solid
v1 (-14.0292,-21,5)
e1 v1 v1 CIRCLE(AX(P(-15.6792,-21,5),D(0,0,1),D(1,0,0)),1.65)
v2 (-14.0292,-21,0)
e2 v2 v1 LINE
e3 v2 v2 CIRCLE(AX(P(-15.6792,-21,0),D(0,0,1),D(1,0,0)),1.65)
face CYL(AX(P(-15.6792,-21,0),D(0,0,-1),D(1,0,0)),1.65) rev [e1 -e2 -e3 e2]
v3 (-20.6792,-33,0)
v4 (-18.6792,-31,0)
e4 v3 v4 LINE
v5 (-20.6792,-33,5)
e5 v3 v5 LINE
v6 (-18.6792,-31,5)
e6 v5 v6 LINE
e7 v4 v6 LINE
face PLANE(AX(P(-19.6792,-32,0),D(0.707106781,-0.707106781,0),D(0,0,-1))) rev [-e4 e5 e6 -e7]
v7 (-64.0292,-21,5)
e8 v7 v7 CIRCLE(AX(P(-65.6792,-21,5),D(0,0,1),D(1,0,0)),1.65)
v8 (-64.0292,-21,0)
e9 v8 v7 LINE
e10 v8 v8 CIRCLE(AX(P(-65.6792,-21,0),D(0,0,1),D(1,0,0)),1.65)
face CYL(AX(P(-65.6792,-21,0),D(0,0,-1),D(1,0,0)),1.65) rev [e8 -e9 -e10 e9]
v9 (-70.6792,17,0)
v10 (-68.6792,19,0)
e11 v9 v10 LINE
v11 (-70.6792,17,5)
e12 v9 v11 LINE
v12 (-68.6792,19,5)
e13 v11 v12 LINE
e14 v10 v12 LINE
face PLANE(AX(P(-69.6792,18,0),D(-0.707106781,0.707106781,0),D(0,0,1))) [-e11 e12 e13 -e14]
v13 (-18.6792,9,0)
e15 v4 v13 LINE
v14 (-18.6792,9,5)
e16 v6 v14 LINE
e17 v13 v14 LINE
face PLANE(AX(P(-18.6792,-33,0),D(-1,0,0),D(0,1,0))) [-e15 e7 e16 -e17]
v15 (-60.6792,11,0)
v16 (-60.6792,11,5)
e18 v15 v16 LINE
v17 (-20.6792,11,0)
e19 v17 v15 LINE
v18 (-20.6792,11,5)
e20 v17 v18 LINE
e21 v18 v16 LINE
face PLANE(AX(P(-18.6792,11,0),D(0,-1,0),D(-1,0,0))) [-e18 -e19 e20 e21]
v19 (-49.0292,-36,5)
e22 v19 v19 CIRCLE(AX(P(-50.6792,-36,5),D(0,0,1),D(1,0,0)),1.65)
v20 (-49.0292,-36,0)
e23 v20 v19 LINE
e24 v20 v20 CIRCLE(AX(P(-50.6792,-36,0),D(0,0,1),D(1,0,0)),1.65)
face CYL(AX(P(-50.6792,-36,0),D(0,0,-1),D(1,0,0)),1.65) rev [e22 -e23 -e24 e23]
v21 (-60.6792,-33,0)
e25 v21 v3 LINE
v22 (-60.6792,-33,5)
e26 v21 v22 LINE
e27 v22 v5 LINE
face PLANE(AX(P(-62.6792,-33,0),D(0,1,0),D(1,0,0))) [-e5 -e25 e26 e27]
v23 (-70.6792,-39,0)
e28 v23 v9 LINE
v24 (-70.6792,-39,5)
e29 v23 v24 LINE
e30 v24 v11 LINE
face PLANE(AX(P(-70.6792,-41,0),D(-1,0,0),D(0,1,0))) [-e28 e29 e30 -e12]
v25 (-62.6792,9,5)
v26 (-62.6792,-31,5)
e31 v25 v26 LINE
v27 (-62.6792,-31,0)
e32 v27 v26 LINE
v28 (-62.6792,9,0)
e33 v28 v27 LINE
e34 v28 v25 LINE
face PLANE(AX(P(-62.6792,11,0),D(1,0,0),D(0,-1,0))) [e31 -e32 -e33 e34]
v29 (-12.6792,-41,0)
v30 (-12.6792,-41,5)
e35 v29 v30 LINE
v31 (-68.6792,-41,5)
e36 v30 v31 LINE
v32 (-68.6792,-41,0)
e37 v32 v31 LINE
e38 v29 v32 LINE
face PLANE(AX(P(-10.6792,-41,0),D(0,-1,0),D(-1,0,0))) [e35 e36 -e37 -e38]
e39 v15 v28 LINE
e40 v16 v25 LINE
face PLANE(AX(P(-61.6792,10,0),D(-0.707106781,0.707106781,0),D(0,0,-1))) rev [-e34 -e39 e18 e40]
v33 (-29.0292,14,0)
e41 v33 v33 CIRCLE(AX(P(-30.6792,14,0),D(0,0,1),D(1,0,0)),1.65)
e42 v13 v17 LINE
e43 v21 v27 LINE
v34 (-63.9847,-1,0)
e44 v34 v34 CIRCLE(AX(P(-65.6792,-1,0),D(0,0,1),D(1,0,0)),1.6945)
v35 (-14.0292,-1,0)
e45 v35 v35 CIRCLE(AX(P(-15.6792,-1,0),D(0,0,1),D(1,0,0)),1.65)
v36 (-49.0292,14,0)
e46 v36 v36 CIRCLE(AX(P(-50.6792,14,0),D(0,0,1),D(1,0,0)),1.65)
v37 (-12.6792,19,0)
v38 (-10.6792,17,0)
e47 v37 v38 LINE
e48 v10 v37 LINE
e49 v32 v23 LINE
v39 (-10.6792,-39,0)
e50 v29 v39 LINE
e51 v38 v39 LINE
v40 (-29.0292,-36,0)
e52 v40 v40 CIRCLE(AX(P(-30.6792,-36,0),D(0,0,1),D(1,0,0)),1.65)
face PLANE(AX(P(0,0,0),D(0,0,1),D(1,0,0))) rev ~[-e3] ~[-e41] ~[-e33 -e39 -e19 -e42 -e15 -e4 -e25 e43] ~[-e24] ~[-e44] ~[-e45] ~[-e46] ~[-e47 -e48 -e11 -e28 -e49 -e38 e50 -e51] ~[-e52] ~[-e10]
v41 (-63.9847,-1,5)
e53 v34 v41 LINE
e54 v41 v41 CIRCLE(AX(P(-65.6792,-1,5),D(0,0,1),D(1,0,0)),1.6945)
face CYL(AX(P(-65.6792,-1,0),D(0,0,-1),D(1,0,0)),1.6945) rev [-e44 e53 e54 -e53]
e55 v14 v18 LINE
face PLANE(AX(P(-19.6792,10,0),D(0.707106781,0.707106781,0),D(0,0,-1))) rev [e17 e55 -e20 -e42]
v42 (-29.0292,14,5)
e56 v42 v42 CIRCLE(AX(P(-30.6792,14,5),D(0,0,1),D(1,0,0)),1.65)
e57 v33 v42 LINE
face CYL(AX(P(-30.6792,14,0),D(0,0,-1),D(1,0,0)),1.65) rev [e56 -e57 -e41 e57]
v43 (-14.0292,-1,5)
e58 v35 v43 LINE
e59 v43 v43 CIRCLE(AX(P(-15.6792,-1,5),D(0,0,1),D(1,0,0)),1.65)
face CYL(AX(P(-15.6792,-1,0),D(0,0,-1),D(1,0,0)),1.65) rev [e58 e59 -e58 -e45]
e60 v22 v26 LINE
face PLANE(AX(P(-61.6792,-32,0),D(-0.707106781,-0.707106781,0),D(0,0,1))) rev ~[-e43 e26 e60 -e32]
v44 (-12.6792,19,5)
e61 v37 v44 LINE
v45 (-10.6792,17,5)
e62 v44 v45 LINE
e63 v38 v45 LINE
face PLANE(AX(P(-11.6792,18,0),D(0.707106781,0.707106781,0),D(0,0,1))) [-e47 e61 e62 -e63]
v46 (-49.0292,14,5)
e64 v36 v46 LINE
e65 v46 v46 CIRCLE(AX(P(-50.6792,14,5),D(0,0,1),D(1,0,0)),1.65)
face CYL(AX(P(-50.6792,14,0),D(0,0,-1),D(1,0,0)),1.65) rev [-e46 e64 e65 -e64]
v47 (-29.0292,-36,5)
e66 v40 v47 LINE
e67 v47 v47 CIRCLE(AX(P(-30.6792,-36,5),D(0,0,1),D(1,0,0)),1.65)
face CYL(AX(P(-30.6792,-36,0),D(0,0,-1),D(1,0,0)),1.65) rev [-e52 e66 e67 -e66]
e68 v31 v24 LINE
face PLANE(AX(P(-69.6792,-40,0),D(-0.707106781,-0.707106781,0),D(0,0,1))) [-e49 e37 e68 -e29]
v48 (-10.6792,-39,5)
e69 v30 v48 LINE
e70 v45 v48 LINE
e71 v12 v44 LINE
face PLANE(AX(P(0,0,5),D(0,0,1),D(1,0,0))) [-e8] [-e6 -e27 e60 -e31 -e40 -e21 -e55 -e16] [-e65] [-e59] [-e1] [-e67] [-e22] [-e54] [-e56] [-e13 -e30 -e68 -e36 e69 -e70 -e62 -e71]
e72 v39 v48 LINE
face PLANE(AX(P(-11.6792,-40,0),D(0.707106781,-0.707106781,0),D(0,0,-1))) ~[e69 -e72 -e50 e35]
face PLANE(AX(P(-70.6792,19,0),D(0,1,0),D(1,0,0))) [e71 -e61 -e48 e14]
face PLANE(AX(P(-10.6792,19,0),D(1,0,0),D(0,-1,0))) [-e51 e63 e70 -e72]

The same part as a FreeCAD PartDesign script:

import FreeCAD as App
import Part
import Sketcher
from FreeCAD import Vector


def edges_at(feature, points):
    """Names of the edges that pass closest to the given points."""
    edges = feature.Shape.Edges
    near = lambda p: min(range(len(edges)), key=lambda i: edges[i].distToShape(Part.Vertex(*p))[0])
    return sorted({f"Edge{near(p) + 1}" for p in points})

doc = App.newDocument("Part")
body = doc.addObject("PartDesign::Body", "Body")

# Sketch on XY plane
sketch1 = doc.addObject("Sketcher::SketchObject", "Sketch")
body.addObject(sketch1)
sketch1.AttachmentSupport = (doc.XY_Plane, [""])
sketch1.MapMode = "FlatFace"
sketch1.addGeometry(Part.LineSegment(Vector(-70.7, -41, 0), Vector(-10.7, -41, 0)), False)
sketch1.addGeometry(Part.LineSegment(Vector(-10.7, -41, 0), Vector(-10.7, 19, 0)), False)
sketch1.addGeometry(Part.LineSegment(Vector(-10.7, 19, 0), Vector(-70.7, 19, 0)), False)
sketch1.addGeometry(Part.LineSegment(Vector(-70.7, 19, 0), Vector(-70.7, -41, 0)), False)
sketch1.addGeometry(Part.Circle(Vector(-50.7, -36, 0), Vector(0, 0, 1), 1.6), False)
sketch1.addGeometry(Part.Circle(Vector(-65.7, -21, 0), Vector(0, 0, 1), 1.6), False)
sketch1.addGeometry(Part.Circle(Vector(-30.7, -36, 0), Vector(0, 0, 1), 1.6), False)
sketch1.addGeometry(Part.Circle(Vector(-15.7, -21, 0), Vector(0, 0, 1), 1.6), False)
sketch1.addGeometry(Part.Circle(Vector(-65.7, -1, 0), Vector(0, 0, 1), 1.7), False)
sketch1.addGeometry(Part.Circle(Vector(-50.7, 14, 0), Vector(0, 0, 1), 1.6), False)
sketch1.addGeometry(Part.LineSegment(Vector(-18.7, -33, 0), Vector(-62.7, -33, 0)), False)
sketch1.addGeometry(Part.LineSegment(Vector(-62.7, -33, 0), Vector(-62.7, 11, 0)), False)
sketch1.addGeometry(Part.LineSegment(Vector(-62.7, 11, 0), Vector(-18.7, 11, 0)), False)
sketch1.addGeometry(Part.LineSegment(Vector(-18.7, 11, 0), Vector(-18.7, -33, 0)), False)
sketch1.addGeometry(Part.Circle(Vector(-15.7, -1, 0), Vector(0, 0, 1), 1.6), False)
sketch1.addGeometry(Part.Circle(Vector(-30.7, 14, 0), Vector(0, 0, 1), 1.6), False)
sketch1.addConstraint(Sketcher.Constraint("Coincident", 0, 2, 1, 1))
sketch1.addConstraint(Sketcher.Constraint("Coincident", 1, 2, 2, 1))
sketch1.addConstraint(Sketcher.Constraint("Coincident", 2, 2, 3, 1))
sketch1.addConstraint(Sketcher.Constraint("Coincident", 3, 2, 0, 1))
sketch1.addConstraint(Sketcher.Constraint("Coincident", 10, 2, 11, 1))
sketch1.addConstraint(Sketcher.Constraint("Coincident", 11, 2, 12, 1))
sketch1.addConstraint(Sketcher.Constraint("Coincident", 12, 2, 13, 1))
sketch1.addConstraint(Sketcher.Constraint("Coincident", 13, 2, 10, 1))
sketch1.addConstraint(Sketcher.Constraint("Horizontal", 0))
sketch1.addConstraint(Sketcher.Constraint("Vertical", 1))
sketch1.addConstraint(Sketcher.Constraint("Horizontal", 2))
sketch1.addConstraint(Sketcher.Constraint("Vertical", 3))
sketch1.addConstraint(Sketcher.Constraint("Horizontal", 10))
sketch1.addConstraint(Sketcher.Constraint("Vertical", 11))
sketch1.addConstraint(Sketcher.Constraint("Horizontal", 12))
sketch1.addConstraint(Sketcher.Constraint("Vertical", 13))
sketch1.addConstraint(Sketcher.Constraint("Equal", 4, 5))
sketch1.addConstraint(Sketcher.Constraint("Equal", 5, 6))
sketch1.addConstraint(Sketcher.Constraint("Equal", 6, 7))
sketch1.addConstraint(Sketcher.Constraint("Equal", 7, 9))
sketch1.addConstraint(Sketcher.Constraint("Equal", 9, 14))
sketch1.addConstraint(Sketcher.Constraint("Equal", 14, 15))
sketch1.addConstraint(Sketcher.Constraint("Horizontal", 4, 3, 6, 3))
sketch1.addConstraint(Sketcher.Constraint("Horizontal", 5, 3, 7, 3))
sketch1.addConstraint(Sketcher.Constraint("Horizontal", 8, 3, 14, 3))
sketch1.addConstraint(Sketcher.Constraint("Horizontal", 9, 3, 15, 3))
sketch1.addConstraint(Sketcher.Constraint("Vertical", 5, 3, 8, 3))
sketch1.addConstraint(Sketcher.Constraint("Vertical", 4, 3, 9, 3))
sketch1.addConstraint(Sketcher.Constraint("Vertical", 7, 3, 14, 3))
sketch1.addConstraint(Sketcher.Constraint("Vertical", 6, 3, 15, 3))
sketch1.addConstraint(Sketcher.Constraint("Equal", 2, 1))
sketch1.addConstraint(Sketcher.Constraint("Equal", 12, 11))
sketch1.addConstraint(Sketcher.Constraint("DistanceX", 3, 2, 10, 2, 8.0))
sketch1.addConstraint(Sketcher.Constraint("DistanceY", 3, 2, 10, 2, 8.0))
sketch1.addConstraint(Sketcher.Constraint("DistanceY", 11, 2, 2, 2, 8.0))
sketch1.addConstraint(Sketcher.Constraint("Diameter", 4, 3.3))
sketch1.addConstraint(Sketcher.Constraint("DistanceX", 0, 1, 0, 2, 60.0))
sketch1.addConstraint(Sketcher.Constraint("Diameter", 8, 3.389))
sketch1.addConstraint(Sketcher.Constraint("DistanceY", 4, 3, -1, 1, 36.0))
sketch1.addConstraint(Sketcher.Constraint("DistanceY", 5, 3, -1, 1, 21.0))
sketch1.addConstraint(Sketcher.Constraint("DistanceY", 8, 3, -1, 1, 1.0))
sketch1.addConstraint(Sketcher.Constraint("DistanceY", -1, 1, 9, 3, 14.0))
sketch1.addConstraint(Sketcher.Constraint("DistanceY", 0, 2, -1, 1, 41.0))
sketch1.addConstraint(Sketcher.Constraint("DistanceX", 5, 3, 4, 3, 15.0))
sketch1.addConstraint(Sketcher.Constraint("DistanceX", 4, 3, 6, 3, 20.0))
sketch1.addConstraint(Sketcher.Constraint("DistanceX", 6, 3, 7, 3, 15.0))
sketch1.addConstraint(Sketcher.Constraint("DistanceX", 6, 3, 0, 2, 20.0))
sketch1.addConstraint(Sketcher.Constraint("DistanceX", 4, 3, -1, 1, 50.6792))
pad1 = doc.addObject("PartDesign::Pad", "Pad")
body.addObject(pad1)
pad1.Profile = sketch1
pad1.Length = 5
doc.recompute()

chamfer = doc.addObject("PartDesign::Chamfer", "Chamfer")
body.addObject(chamfer)
chamfer.Base = (pad1, edges_at(pad1, [
    (-10.679, 19, 2.5),
    (-70.679, 19, 2.5),
    (-10.679, -41, 2.5),
    (-70.679, -41, 2.5),
    (-18.679, -33, 2.5),
    (-62.679, -33, 2.5),
    (-18.679, 11, 2.5),
    (-62.679, 11, 2.5),
]))
chamfer.Size = 2

doc.recompute()
